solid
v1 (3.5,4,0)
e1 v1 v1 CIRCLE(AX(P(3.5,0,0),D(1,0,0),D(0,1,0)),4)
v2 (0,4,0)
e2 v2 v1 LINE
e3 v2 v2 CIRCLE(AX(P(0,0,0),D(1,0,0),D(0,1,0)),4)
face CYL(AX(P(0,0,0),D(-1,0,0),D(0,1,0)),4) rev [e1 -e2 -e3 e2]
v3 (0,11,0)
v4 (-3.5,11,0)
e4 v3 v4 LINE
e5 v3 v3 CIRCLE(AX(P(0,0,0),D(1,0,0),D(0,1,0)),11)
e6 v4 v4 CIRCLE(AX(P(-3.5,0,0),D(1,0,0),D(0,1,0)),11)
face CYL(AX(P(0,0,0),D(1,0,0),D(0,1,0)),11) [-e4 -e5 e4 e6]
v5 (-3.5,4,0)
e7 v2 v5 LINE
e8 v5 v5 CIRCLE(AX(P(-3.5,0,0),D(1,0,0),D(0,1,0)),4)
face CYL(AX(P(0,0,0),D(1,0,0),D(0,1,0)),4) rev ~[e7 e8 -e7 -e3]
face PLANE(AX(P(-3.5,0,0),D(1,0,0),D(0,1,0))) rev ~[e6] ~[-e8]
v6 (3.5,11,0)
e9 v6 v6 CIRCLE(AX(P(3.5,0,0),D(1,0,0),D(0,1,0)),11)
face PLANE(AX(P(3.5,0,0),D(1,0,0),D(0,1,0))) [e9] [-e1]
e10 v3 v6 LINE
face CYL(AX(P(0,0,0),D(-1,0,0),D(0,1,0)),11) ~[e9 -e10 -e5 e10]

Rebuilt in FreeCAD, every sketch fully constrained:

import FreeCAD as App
import Part
import Sketcher

V = App.Vector

doc = App.newDocument("Part")
body = doc.addObject("PartDesign::Body", "Body")

# Sketch on YZ plane
sketch1 = body.newObject("Sketcher::SketchObject", "Sketch")
sketch1.AttachmentSupport = (doc.getObject("YZ_Plane"), [""])
sketch1.MapMode = "FlatFace"
sketch1.addGeometry(Part.Circle(V(0, 0, 0), V(0, 0, 1), 11), False)
sketch1.addGeometry(Part.Circle(V(0, 0, 0), V(0, 0, 1), 4), False)
sketch1.addConstraint(Sketcher.Constraint("Coincident", 0, 3, -1, 1))
sketch1.addConstraint(Sketcher.Constraint("Coincident", 1, 3, -1, 1))
sketch1.addConstraint(Sketcher.Constraint("Diameter", 0, 22.0))
sketch1.addConstraint(Sketcher.Constraint("Diameter", 1, 8.0))
pad1 = body.newObject("PartDesign::Pad", "Pad")
pad1.Profile = sketch1
pad1.Length = 7
pad1.Midplane = True

doc.recompute()
